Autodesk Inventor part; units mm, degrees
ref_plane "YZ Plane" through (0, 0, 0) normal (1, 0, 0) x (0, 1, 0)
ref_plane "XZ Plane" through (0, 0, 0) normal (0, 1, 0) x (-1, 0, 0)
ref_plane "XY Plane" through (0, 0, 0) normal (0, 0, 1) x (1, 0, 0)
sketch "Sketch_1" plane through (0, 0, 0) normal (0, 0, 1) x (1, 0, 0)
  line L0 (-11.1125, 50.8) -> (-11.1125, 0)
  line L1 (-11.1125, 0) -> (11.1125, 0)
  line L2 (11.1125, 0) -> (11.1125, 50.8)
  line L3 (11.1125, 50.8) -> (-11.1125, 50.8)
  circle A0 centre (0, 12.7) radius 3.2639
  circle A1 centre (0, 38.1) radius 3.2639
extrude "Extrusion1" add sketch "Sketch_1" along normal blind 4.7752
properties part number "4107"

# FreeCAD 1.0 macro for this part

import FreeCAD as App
import Part
import Sketcher

V = App.Vector
Q = App.Units.Quantity

doc = App.newDocument("Part")
body = doc.addObject("PartDesign::Body", "Body")

sketch1 = doc.addObject("Sketcher::SketchObject", "Sketch")
body.addObject(sketch1)
sketch1.AttachmentSupport = (doc.XY_Plane, [""])
sketch1.MapMode = "FlatFace"
sketch1.addGeometry(Part.LineSegment(V(11.1, 50.8, 0), V(-11.1, 50.8, 0)), False)
sketch1.addGeometry(Part.LineSegment(V(-11.1, 50.8, 0), V(-11.1, 0, 0)), False)
sketch1.addGeometry(Part.LineSegment(V(-11.1, 0, 0), V(11.1, 0, 0)), False)
sketch1.addGeometry(Part.LineSegment(V(11.1, 0, 0), V(11.1, 50.8, 0)), False)
sketch1.addGeometry(Part.Circle(V(0, 12.7, 0), V(0, 0, 1), 3.3), False)
sketch1.addGeometry(Part.Circle(V(0, 38.1, 0), V(0, 0, 1), 3.3), False)
sketch1.addConstraint(Sketcher.Constraint("Coincident", 0, 2, 1, 1))
sketch1.addConstraint(Sketcher.Constraint("Coincident", 1, 2, 2, 1))
sketch1.addConstraint(Sketcher.Constraint("Coincident", 2, 2, 3, 1))
sketch1.addConstraint(Sketcher.Constraint("Coincident", 3, 2, 0, 1))
sketch1.addConstraint(Sketcher.Constraint("Horizontal", 0))
sketch1.addConstraint(Sketcher.Constraint("Vertical", 1))
sketch1.addConstraint(Sketcher.Constraint("Horizontal", 2))
sketch1.addConstraint(Sketcher.Constraint("Vertical", 3))
sketch1.addConstraint(Sketcher.Constraint("Equal", 4, 5))
sketch1.addConstraint(Sketcher.Constraint("Symmetric", 1, 2, 2, 2, -1, 1))
sketch1.addConstraint(Sketcher.Constraint("PointOnObject", 4, 3, -2))
sketch1.addConstraint(Sketcher.Constraint("PointOnObject", 5, 3, -2))
sketch1.addConstraint(Sketcher.Constraint("DistanceY", 1, 2, 1, 1, Q("2 in")))
sketch1.addConstraint(Sketcher.Constraint("Diameter", 4, Q("0.257 in")))
sketch1.addConstraint(Sketcher.Constraint("DistanceY", 4, 3, 5, 3, Q("1 in")))
sketch1.addConstraint(Sketcher.Constraint("DistanceY", -1, 1, 4, 3, Q("0.5 in")))
sketch1.addConstraint(Sketcher.Constraint("DistanceX", 0, 2, 0, 1, Q("0.875 in")))
pad1 = doc.addObject("PartDesign::Pad", "Pad")
body.addObject(pad1)
pad1.Profile = sketch1
pad1.Length = Q("0.188 in")

doc.recompute()
